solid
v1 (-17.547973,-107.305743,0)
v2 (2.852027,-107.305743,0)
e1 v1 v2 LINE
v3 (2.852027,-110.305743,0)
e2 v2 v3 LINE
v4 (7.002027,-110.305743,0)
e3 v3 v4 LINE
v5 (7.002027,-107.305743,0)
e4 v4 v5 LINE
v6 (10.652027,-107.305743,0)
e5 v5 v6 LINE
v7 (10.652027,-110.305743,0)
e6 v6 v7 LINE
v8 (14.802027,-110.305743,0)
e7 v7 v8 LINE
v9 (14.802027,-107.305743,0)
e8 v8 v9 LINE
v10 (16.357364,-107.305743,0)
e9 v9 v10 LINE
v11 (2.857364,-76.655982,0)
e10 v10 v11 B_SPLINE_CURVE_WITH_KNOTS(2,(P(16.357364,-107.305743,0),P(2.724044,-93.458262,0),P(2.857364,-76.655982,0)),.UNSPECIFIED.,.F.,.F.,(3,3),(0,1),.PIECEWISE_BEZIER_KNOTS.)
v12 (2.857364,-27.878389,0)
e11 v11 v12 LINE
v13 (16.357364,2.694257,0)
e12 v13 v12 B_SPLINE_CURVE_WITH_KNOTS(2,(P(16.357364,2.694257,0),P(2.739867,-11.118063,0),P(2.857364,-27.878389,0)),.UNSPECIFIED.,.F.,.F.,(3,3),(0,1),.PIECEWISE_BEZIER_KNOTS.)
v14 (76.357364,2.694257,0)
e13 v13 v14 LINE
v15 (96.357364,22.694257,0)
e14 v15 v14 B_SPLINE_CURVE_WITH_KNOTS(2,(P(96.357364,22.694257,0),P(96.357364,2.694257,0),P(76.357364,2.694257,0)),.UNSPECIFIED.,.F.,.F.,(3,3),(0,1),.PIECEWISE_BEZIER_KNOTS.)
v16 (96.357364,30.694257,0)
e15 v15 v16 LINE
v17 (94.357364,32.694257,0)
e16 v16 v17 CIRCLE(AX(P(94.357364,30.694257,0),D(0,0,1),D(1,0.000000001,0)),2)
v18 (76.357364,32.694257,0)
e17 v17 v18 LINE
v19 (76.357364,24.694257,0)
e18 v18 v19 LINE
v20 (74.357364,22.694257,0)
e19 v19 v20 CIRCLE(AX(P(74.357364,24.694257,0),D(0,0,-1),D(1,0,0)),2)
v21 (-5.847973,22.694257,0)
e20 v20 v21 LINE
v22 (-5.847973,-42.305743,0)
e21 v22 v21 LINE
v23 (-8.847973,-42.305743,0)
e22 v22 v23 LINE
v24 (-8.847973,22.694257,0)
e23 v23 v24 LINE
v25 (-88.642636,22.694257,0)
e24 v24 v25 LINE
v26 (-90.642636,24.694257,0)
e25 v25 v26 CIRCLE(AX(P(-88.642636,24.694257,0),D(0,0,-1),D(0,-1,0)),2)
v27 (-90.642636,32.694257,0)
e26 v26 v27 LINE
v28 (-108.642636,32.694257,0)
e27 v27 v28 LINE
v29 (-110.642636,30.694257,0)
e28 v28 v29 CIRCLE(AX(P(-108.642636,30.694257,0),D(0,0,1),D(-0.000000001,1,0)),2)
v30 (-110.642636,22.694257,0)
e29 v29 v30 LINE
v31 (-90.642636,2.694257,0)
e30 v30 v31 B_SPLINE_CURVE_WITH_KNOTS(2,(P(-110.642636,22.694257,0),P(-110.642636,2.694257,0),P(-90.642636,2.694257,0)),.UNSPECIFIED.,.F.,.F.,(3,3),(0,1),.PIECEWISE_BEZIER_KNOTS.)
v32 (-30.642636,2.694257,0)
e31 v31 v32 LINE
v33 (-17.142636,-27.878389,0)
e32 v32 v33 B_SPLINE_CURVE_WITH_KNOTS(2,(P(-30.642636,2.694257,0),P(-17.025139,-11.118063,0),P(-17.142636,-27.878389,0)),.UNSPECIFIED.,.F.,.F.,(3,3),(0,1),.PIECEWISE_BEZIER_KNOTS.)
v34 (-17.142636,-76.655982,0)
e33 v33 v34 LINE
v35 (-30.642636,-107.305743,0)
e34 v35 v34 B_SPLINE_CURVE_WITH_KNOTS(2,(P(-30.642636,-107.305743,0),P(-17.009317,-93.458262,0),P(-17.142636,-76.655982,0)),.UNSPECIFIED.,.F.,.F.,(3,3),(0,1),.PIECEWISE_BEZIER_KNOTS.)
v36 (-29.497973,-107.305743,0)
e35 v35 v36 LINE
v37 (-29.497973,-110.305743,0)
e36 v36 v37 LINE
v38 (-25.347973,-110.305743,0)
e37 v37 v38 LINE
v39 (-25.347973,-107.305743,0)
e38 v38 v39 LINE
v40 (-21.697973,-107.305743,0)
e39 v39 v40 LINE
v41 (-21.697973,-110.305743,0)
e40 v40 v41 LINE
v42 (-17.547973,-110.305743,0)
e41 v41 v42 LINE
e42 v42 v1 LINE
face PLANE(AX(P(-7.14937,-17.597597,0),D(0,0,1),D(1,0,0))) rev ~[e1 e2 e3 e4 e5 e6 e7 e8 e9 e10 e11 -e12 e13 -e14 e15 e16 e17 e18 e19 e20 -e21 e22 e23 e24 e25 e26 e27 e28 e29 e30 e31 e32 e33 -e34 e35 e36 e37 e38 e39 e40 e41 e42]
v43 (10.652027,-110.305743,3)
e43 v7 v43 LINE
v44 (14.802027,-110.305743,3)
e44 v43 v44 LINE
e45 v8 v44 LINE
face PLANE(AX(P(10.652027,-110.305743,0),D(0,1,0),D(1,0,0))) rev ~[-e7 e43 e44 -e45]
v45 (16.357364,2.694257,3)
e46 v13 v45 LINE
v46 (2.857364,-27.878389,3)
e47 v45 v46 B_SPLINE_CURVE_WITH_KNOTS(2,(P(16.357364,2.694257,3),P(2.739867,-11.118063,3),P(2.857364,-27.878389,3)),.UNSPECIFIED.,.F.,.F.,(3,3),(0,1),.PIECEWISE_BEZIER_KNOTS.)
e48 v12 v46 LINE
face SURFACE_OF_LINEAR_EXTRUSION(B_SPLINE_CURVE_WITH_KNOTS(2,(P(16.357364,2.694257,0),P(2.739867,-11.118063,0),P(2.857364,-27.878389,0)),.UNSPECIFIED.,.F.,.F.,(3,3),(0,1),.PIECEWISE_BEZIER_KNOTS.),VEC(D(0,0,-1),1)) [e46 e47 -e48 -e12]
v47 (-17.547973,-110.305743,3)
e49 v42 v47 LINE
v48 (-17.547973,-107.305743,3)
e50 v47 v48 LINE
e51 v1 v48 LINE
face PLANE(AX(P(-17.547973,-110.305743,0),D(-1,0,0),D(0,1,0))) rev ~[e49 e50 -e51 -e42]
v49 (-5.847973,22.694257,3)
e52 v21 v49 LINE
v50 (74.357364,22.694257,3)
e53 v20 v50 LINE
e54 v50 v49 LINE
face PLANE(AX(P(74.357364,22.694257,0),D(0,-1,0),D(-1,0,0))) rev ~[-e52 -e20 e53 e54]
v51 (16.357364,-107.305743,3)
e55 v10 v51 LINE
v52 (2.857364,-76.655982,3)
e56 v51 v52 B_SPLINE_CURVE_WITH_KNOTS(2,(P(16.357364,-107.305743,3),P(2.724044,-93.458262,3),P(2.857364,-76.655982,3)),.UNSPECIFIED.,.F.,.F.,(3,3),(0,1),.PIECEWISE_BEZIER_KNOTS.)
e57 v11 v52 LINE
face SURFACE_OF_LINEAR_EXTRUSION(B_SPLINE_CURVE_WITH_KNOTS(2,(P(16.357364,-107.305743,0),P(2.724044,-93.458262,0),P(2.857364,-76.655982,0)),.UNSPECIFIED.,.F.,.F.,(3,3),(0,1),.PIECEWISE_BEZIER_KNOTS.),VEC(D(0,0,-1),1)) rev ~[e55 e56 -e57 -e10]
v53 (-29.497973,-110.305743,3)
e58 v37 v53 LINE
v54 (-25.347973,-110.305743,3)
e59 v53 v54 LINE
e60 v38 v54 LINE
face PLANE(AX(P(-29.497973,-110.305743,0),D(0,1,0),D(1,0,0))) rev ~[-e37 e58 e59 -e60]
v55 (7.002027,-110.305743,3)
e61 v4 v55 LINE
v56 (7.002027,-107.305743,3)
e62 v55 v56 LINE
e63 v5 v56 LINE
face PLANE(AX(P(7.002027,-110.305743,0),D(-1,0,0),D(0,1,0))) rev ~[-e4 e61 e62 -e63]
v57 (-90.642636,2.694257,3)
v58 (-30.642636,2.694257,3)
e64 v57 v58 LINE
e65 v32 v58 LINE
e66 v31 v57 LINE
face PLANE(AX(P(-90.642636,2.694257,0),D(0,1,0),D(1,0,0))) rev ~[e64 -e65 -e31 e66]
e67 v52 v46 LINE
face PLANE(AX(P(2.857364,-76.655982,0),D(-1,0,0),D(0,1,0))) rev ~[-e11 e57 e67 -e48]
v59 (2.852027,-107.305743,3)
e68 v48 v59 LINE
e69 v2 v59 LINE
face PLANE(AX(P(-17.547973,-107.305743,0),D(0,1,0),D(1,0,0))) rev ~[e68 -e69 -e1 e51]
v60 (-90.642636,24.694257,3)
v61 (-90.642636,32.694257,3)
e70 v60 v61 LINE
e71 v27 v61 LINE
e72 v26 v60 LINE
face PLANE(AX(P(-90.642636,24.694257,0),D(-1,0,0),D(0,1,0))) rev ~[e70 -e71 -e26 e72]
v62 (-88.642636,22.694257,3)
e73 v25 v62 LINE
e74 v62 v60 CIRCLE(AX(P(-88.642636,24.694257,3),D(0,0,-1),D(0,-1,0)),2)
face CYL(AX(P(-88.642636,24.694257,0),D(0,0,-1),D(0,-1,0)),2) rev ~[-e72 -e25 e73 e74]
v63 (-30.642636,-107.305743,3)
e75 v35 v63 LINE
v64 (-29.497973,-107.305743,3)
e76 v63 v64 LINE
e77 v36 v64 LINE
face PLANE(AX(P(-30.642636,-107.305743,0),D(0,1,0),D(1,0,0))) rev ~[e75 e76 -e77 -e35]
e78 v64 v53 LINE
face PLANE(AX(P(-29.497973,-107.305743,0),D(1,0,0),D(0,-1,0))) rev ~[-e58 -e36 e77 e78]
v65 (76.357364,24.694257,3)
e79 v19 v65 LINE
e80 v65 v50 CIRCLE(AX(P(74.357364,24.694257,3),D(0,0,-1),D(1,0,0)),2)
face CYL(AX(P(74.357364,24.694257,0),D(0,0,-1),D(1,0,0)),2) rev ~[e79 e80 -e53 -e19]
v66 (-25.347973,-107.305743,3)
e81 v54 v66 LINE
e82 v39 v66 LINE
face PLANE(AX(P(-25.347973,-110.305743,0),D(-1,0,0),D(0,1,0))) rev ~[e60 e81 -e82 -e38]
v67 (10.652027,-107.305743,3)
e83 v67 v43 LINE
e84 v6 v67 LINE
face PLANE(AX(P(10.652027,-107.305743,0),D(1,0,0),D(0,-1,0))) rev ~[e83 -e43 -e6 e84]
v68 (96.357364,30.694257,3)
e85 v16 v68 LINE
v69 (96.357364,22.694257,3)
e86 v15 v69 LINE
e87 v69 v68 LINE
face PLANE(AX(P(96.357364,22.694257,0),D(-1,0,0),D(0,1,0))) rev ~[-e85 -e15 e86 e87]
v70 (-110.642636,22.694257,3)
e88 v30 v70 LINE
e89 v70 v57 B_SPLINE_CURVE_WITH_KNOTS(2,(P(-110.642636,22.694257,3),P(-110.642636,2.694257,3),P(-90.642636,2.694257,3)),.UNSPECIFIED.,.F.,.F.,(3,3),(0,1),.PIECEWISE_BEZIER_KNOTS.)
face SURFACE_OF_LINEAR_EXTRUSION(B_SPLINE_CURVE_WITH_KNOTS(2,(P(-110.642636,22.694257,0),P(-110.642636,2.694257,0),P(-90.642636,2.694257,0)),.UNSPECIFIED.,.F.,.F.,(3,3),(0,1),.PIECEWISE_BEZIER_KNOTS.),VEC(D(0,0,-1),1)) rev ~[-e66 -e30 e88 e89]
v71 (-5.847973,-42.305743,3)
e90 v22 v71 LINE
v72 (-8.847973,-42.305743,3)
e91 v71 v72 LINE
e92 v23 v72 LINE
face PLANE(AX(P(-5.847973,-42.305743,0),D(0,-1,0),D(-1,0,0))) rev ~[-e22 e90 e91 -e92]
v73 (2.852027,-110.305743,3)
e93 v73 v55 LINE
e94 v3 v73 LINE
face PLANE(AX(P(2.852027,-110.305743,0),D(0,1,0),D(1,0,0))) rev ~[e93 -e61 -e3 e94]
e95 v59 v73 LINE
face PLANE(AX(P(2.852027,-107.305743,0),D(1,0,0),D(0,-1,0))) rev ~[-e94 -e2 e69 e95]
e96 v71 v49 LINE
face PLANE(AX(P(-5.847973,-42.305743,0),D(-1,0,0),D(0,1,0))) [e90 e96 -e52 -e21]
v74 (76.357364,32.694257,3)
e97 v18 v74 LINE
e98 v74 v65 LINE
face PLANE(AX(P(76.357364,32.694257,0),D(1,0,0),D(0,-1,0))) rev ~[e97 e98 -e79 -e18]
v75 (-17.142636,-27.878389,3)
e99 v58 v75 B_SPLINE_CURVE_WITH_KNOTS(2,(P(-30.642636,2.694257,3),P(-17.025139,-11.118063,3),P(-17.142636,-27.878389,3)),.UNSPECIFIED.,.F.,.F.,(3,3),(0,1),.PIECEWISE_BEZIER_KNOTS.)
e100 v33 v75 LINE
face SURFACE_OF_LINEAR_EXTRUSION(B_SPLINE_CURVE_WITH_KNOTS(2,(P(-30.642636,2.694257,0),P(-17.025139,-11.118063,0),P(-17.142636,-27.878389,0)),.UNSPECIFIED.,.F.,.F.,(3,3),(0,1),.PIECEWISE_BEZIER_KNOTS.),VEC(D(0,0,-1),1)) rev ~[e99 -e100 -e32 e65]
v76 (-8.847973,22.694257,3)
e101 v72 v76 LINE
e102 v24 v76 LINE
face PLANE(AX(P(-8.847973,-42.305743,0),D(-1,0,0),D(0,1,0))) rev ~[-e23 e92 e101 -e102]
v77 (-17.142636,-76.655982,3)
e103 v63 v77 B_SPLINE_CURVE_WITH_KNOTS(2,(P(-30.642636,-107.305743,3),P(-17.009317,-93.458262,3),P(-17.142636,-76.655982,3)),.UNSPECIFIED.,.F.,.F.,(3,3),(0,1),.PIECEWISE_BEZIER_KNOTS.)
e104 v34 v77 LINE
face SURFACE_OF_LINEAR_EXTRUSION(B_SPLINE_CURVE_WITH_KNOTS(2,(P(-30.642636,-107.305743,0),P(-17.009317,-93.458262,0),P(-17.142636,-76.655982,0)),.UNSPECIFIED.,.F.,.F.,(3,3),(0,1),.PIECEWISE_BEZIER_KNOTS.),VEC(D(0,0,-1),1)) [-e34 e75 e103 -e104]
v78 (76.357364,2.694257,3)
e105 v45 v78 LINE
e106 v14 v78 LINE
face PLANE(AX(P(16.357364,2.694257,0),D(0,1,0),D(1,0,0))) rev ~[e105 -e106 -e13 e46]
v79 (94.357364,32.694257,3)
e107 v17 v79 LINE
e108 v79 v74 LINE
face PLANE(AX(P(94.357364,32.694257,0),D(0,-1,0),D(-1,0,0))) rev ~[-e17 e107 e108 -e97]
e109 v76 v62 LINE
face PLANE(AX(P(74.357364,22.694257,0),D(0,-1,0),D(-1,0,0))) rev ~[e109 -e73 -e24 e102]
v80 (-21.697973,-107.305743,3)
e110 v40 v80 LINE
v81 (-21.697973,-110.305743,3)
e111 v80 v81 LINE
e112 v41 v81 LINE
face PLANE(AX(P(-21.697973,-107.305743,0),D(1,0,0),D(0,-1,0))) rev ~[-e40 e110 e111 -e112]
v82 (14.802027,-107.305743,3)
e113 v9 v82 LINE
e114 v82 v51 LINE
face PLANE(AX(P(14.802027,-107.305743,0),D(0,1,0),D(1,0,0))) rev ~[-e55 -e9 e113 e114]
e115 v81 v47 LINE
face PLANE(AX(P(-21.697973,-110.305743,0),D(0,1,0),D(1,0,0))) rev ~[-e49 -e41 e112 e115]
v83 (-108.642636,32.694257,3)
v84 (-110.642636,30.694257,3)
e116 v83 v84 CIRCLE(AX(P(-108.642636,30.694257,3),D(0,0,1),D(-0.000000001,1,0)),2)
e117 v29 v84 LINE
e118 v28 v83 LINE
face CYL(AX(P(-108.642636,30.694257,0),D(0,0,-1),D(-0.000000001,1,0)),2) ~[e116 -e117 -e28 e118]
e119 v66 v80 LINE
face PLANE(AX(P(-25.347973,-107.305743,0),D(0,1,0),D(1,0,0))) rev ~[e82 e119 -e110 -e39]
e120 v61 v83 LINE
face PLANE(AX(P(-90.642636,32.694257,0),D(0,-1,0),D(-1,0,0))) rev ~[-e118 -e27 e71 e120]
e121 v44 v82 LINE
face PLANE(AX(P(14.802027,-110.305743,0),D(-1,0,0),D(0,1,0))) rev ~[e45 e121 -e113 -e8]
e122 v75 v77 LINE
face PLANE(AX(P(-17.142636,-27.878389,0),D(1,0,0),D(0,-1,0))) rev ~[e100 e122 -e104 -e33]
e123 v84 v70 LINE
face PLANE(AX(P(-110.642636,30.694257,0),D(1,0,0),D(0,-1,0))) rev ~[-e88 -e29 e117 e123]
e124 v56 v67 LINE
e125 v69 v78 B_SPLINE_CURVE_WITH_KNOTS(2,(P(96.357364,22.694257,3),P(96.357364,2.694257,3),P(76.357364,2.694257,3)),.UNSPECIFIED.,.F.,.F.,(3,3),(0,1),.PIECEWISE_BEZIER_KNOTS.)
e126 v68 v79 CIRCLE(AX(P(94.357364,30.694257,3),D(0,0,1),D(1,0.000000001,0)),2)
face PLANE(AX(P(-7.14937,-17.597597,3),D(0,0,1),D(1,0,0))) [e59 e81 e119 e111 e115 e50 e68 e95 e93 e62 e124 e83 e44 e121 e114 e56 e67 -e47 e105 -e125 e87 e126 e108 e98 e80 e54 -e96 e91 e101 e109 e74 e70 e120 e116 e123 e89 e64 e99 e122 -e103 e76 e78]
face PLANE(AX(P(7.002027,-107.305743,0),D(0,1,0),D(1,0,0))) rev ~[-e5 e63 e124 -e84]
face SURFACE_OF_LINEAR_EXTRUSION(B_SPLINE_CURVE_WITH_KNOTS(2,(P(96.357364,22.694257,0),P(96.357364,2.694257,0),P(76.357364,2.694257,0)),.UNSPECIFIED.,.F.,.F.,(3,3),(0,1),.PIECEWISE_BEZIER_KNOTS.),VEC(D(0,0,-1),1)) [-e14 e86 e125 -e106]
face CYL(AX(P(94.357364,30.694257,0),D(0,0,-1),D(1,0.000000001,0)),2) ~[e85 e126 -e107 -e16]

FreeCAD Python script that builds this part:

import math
import FreeCAD as App
import Part
import Sketcher

V = App.Vector
Q = App.Units.Quantity


def add_polygon(sketch, points):
    """Adds a closed chain of lines whose ends are joined by coincident constraints."""
    first, n = sketch.GeometryCount, len(points)
    for a, b in zip(points, points[1:] + points[:1]):
        sketch.addGeometry(Part.LineSegment(App.Vector(*a, 0), App.Vector(*b, 0)), False)
    for i in range(n):
        sketch.addConstraint(Sketcher.Constraint("Coincident", first + i, 2, first + (i + 1) % n, 1))

doc = App.newDocument("Part")
body = doc.addObject("PartDesign::Body", "Body")

# Sketch on XY plane
sketch1 = doc.addObject("Sketcher::SketchObject", "Sketch")
body.addObject(sketch1)
sketch1.AttachmentSupport = (doc.XY_Plane, [""])
sketch1.MapMode = "FlatFace"
sketch1.addGeometry([
    Part.LineSegment(V(-90.642636, 2.694257, 0), V(-30.642636, 2.694257, 0)),  # 0
    Part.BSplineCurve([V(-30.642636, 2.694257, 0), V(-17.025139, -11.118063, 0), V(-17.142636, -27.878389, 0)], [3, 3], [0, 1], False, 2, [1, 1, 1], False),  # 1
    Part.LineSegment(V(-17.142636, -27.878389, 0), V(-17.142636, -76.655982, 0)),  # 2
    Part.BSplineCurve([V(-30.642636, -107.305743, 0), V(-17.009317, -93.458262, 0), V(-17.142636, -76.655982, 0)], [3, 3], [0, 1], False, 2, [1, 1, 1], False),  # 3
    Part.LineSegment(V(-30.642636, -107.305743, 0), V(-29.497973, -107.305743, 0)),  # 4
    Part.LineSegment(V(-29.497973, -107.305743, 0), V(-29.497973, -110.305743, 0)),  # 5
    Part.LineSegment(V(-29.497973, -110.305743, 0), V(-25.347973, -110.305743, 0)),  # 6
    Part.LineSegment(V(-25.347973, -110.305743, 0), V(-25.347973, -107.305743, 0)),  # 7
    Part.LineSegment(V(-25.347973, -107.305743, 0), V(-21.697973, -107.305743, 0)),  # 8
    Part.LineSegment(V(-21.697973, -107.305743, 0), V(-21.697973, -110.305743, 0)),  # 9
    Part.LineSegment(V(-21.697973, -110.305743, 0), V(-17.547973, -110.305743, 0)),  # 10
    Part.LineSegment(V(-17.547973, -110.305743, 0), V(-17.547973, -107.305743, 0)),  # 11
    Part.LineSegment(V(-17.547973, -107.305743, 0), V(2.852027, -107.305743, 0)),  # 12
    Part.LineSegment(V(2.852027, -107.305743, 0), V(2.852027, -110.305743, 0)),  # 13
    Part.LineSegment(V(2.852027, -110.305743, 0), V(7.002027, -110.305743, 0)),  # 14
    Part.LineSegment(V(7.002027, -110.305743, 0), V(7.002027, -107.305743, 0)),  # 15
    Part.LineSegment(V(7.002027, -107.305743, 0), V(10.652027, -107.305743, 0)),  # 16
    Part.LineSegment(V(10.652027, -107.305743, 0), V(10.652027, -110.305743, 0)),  # 17
    Part.LineSegment(V(10.652027, -110.305743, 0), V(14.802027, -110.305743, 0)),  # 18
    Part.LineSegment(V(14.802027, -110.305743, 0), V(14.802027, -107.305743, 0)),  # 19
    Part.LineSegment(V(14.802027, -107.305743, 0), V(16.357364, -107.305743, 0)),  # 20
    Part.BSplineCurve([V(16.357364, -107.305743, 0), V(2.724044, -93.458262, 0), V(2.857364, -76.655982, 0)], [3, 3], [0, 1], False, 2, [1, 1, 1], False),  # 21
    Part.LineSegment(V(2.857364, -76.655982, 0), V(2.857364, -27.878389, 0)),  # 22
    Part.BSplineCurve([V(16.357364, 2.694257, 0), V(2.739867, -11.118063, 0), V(2.857364, -27.878389, 0)], [3, 3], [0, 1], False, 2, [1, 1, 1], False),  # 23
    Part.LineSegment(V(16.357364, 2.694257, 0), V(76.357364, 2.694257, 0)),  # 24
    Part.BSplineCurve([V(96.357364, 22.694257, 0), V(96.357364, 2.694257, 0), V(76.357364, 2.694257, 0)], [3, 3], [0, 1], False, 2, [1, 1, 1], False),  # 25
    Part.LineSegment(V(96.357364, 22.694257, 0), V(96.357364, 30.694257, 0)),  # 26
    Part.ArcOfCircle(Part.Circle(V(94.357364, 30.694257, 0), V(0, 0, 1), 2), math.radians(0), math.radians(90)),  # 27
    Part.LineSegment(V(94.357364, 32.694257, 0), V(76.357364, 32.694257, 0)),  # 28
    Part.LineSegment(V(76.357364, 32.694257, 0), V(76.357364, 24.694257, 0)),  # 29
    Part.ArcOfCircle(Part.Circle(V(74.357364, 24.694257, 0), V(0, 0, 1), 2), math.radians(-90), math.radians(0)),  # 30
    Part.LineSegment(V(74.357364, 22.694257, 0), V(-88.642636, 22.694257, 0)),  # 31
    Part.ArcOfCircle(Part.Circle(V(-88.642636, 24.694257, 0), V(0, 0, 1), 2), math.radians(180), math.radians(270)),  # 32
    Part.LineSegment(V(-90.642636, 24.694257, 0), V(-90.642636, 32.694257, 0)),  # 33
    Part.LineSegment(V(-90.642636, 32.694257, 0), V(-108.642636, 32.694257, 0)),  # 34
    Part.ArcOfCircle(Part.Circle(V(-108.642636, 30.694257, 0), V(0, 0, 1), 2), math.radians(90), math.radians(180)),  # 35
    Part.LineSegment(V(-110.642636, 30.694257, 0), V(-110.642636, 22.694257, 0)),  # 36
    Part.BSplineCurve([V(-110.642636, 22.694257, 0), V(-110.642636, 2.694257, 0), V(-90.642636, 2.694257, 0)], [3, 3], [0, 1], False, 2, [1, 1, 1], False),  # 37
], False)
sketch1.addConstraint([
    Sketcher.Constraint("Block", 1),
    Sketcher.Constraint("Block", 3),
    Sketcher.Constraint("Block", 21),
    Sketcher.Constraint("Block", 23),
    Sketcher.Constraint("Block", 25),
    Sketcher.Constraint("Block", 37),
    Sketcher.Constraint("Coincident", 0, 2, 1, 1),
    Sketcher.Constraint("Coincident", 1, 2, 2, 1),
    Sketcher.Constraint("Coincident", 2, 2, 3, 2),
    Sketcher.Constraint("Coincident", 3, 1, 4, 1),
    Sketcher.Constraint("Coincident", 4, 2, 5, 1),
    Sketcher.Constraint("Coincident", 5, 2, 6, 1),
    Sketcher.Constraint("Coincident", 6, 2, 7, 1),
    Sketcher.Constraint("Coincident", 7, 2, 8, 1),
    Sketcher.Constraint("Coincident", 8, 2, 9, 1),
    Sketcher.Constraint("Coincident", 9, 2, 10, 1),
    Sketcher.Constraint("Coincident", 10, 2, 11, 1),
    Sketcher.Constraint("Coincident", 11, 2, 12, 1),
    Sketcher.Constraint("Coincident", 12, 2, 13, 1),
    Sketcher.Constraint("Coincident", 13, 2, 14, 1),
    Sketcher.Constraint("Coincident", 14, 2, 15, 1),
    Sketcher.Constraint("Coincident", 15, 2, 16, 1),
    Sketcher.Constraint("Coincident", 16, 2, 17, 1),
    Sketcher.Constraint("Coincident", 17, 2, 18, 1),
    Sketcher.Constraint("Coincident", 18, 2, 19, 1),
    Sketcher.Constraint("Coincident", 19, 2, 20, 1),
    Sketcher.Constraint("Coincident", 20, 2, 21, 1),
    Sketcher.Constraint("Coincident", 21, 2, 22, 1),
    Sketcher.Constraint("Coincident", 22, 2, 23, 2),
    Sketcher.Constraint("Coincident", 23, 1, 24, 1),
    Sketcher.Constraint("Coincident", 24, 2, 25, 2),
    Sketcher.Constraint("Coincident", 25, 1, 26, 1),
    Sketcher.Constraint("Tangent", 26, 2, 27, 1),
    Sketcher.Constraint("Tangent", 27, 2, 28, 1),
    Sketcher.Constraint("Coincident", 28, 2, 29, 1),
    Sketcher.Constraint("Tangent", 29, 2, 30, 2),
    Sketcher.Constraint("Tangent", 30, 1, 31, 1),
    Sketcher.Constraint("Tangent", 31, 2, 32, 2),
    Sketcher.Constraint("Tangent", 32, 1, 33, 1),
    Sketcher.Constraint("Coincident", 33, 2, 34, 1),
    Sketcher.Constraint("Tangent", 34, 2, 35, 1),
    Sketcher.Constraint("Tangent", 35, 2, 36, 1),
    Sketcher.Constraint("Coincident", 36, 2, 37, 1),
    Sketcher.Constraint("Coincident", 37, 2, 0, 1),
    Sketcher.Constraint("Horizontal", 4),
    Sketcher.Constraint("Vertical", 5),
    Sketcher.Constraint("Horizontal", 6),
    Sketcher.Constraint("Vertical", 7),
    Sketcher.Constraint("Horizontal", 8),
    Sketcher.Constraint("Vertical", 9),
    Sketcher.Constraint("Horizontal", 10),
    Sketcher.Constraint("Vertical", 11),
    Sketcher.Constraint("Horizontal", 12),
    Sketcher.Constraint("Vertical", 13),
    Sketcher.Constraint("Horizontal", 14),
    Sketcher.Constraint("Vertical", 15),
    Sketcher.Constraint("Horizontal", 16),
    Sketcher.Constraint("Vertical", 17),
    Sketcher.Constraint("Horizontal", 18),
    Sketcher.Constraint("Vertical", 19),
    Sketcher.Constraint("Horizontal", 20),
    Sketcher.Constraint("Vertical", 26),
    Sketcher.Constraint("Horizontal", 28),
    Sketcher.Constraint("Vertical", 29),
    Sketcher.Constraint("Horizontal", 31),
    Sketcher.Constraint("Vertical", 33),
    Sketcher.Constraint("Horizontal", 34),
    Sketcher.Constraint("Vertical", 36),
    Sketcher.Constraint("Equal", 27, 30),
    Sketcher.Constraint("Equal", 30, 32),
    Sketcher.Constraint("Equal", 32, 35),
    Sketcher.Constraint("Horizontal", 27, 3, 35, 3),
    Sketcher.Constraint("Horizontal", 4, 2, 7, 2),
    Sketcher.Constraint("Horizontal", 6, 2, 9, 2),
    Sketcher.Constraint("Horizontal", 8, 2, 11, 2),
    Sketcher.Constraint("Horizontal", 10, 2, 13, 2),
    Sketcher.Constraint("Horizontal", 12, 2, 15, 2),
    Sketcher.Constraint("Horizontal", 14, 2, 17, 2),
    Sketcher.Constraint("Horizontal", 31, 2, 36, 2),
    Sketcher.Constraint("Vertical", 24, 2, 28, 2),
    Sketcher.Constraint("Equal", 6, 10),
    Sketcher.Constraint("Equal", 10, 14),
    Sketcher.Constraint("Equal", 8, 16),
    Sketcher.Constraint("Equal", 14, 18),
    Sketcher.Constraint("Equal", 28, 34),
    Sketcher.Constraint("Radius", 27, Q("2 mm")),
    Sketcher.Constraint("DistanceY", 5, 2, 5, 1, Q("3 mm")),
    Sketcher.Constraint("DistanceY", 26, 1, 26, 2, Q("8 mm")),
    Sketcher.Constraint("DistanceX", 12, 1, 12, 2, Q("20.4 mm")),
    Sketcher.Constraint("DistanceX", 6, 1, 6, 2, Q("4.15 mm")),
    Sketcher.Constraint("DistanceX", 8, 1, 8, 2, Q("3.65 mm")),
    Sketcher.Constraint("DistanceX", 4, 1, 4, 2, Q("1.144663 mm")),
])
pad1 = doc.addObject("PartDesign::Pad", "Pad")
body.addObject(pad1)
pad1.Profile = sketch1
pad1.Length = 3

# Sketch on XY plane
sketch2 = doc.addObject("Sketcher::SketchObject", "Sketch001")
body.addObject(sketch2)
sketch2.AttachmentSupport = (doc.XY_Plane, [""])
sketch2.MapMode = "FlatFace"
add_polygon(sketch2, [(-5.8, 22.7), (-5.8, -42.3), (-8.8, -42.3), (-8.8, 22.7)])  # lines 0-3
sketch2.addConstraint([
    Sketcher.Constraint("Vertical", 0),
    Sketcher.Constraint("Horizontal", 1),
    Sketcher.Constraint("Vertical", 2),
    Sketcher.Constraint("Horizontal", 3),
    Sketcher.Constraint("DistanceX", 1, 2, 1, 1, Q("3 mm")),
    Sketcher.Constraint("DistanceY", 0, 2, 0, 1, Q("65 mm")),
    Sketcher.Constraint("DistanceX", 0, 2, -1, 1, Q("5.847973 mm")),
    Sketcher.Constraint("DistanceY", 0, 2, -1, 1, Q("42.305743 mm")),
])
pocket1 = doc.addObject("PartDesign::Pocket", "Pocket")
body.addObject(pocket1)
pocket1.Profile = sketch2
pocket1.Length = 3
pocket1.Reversed = True

doc.recompute()
